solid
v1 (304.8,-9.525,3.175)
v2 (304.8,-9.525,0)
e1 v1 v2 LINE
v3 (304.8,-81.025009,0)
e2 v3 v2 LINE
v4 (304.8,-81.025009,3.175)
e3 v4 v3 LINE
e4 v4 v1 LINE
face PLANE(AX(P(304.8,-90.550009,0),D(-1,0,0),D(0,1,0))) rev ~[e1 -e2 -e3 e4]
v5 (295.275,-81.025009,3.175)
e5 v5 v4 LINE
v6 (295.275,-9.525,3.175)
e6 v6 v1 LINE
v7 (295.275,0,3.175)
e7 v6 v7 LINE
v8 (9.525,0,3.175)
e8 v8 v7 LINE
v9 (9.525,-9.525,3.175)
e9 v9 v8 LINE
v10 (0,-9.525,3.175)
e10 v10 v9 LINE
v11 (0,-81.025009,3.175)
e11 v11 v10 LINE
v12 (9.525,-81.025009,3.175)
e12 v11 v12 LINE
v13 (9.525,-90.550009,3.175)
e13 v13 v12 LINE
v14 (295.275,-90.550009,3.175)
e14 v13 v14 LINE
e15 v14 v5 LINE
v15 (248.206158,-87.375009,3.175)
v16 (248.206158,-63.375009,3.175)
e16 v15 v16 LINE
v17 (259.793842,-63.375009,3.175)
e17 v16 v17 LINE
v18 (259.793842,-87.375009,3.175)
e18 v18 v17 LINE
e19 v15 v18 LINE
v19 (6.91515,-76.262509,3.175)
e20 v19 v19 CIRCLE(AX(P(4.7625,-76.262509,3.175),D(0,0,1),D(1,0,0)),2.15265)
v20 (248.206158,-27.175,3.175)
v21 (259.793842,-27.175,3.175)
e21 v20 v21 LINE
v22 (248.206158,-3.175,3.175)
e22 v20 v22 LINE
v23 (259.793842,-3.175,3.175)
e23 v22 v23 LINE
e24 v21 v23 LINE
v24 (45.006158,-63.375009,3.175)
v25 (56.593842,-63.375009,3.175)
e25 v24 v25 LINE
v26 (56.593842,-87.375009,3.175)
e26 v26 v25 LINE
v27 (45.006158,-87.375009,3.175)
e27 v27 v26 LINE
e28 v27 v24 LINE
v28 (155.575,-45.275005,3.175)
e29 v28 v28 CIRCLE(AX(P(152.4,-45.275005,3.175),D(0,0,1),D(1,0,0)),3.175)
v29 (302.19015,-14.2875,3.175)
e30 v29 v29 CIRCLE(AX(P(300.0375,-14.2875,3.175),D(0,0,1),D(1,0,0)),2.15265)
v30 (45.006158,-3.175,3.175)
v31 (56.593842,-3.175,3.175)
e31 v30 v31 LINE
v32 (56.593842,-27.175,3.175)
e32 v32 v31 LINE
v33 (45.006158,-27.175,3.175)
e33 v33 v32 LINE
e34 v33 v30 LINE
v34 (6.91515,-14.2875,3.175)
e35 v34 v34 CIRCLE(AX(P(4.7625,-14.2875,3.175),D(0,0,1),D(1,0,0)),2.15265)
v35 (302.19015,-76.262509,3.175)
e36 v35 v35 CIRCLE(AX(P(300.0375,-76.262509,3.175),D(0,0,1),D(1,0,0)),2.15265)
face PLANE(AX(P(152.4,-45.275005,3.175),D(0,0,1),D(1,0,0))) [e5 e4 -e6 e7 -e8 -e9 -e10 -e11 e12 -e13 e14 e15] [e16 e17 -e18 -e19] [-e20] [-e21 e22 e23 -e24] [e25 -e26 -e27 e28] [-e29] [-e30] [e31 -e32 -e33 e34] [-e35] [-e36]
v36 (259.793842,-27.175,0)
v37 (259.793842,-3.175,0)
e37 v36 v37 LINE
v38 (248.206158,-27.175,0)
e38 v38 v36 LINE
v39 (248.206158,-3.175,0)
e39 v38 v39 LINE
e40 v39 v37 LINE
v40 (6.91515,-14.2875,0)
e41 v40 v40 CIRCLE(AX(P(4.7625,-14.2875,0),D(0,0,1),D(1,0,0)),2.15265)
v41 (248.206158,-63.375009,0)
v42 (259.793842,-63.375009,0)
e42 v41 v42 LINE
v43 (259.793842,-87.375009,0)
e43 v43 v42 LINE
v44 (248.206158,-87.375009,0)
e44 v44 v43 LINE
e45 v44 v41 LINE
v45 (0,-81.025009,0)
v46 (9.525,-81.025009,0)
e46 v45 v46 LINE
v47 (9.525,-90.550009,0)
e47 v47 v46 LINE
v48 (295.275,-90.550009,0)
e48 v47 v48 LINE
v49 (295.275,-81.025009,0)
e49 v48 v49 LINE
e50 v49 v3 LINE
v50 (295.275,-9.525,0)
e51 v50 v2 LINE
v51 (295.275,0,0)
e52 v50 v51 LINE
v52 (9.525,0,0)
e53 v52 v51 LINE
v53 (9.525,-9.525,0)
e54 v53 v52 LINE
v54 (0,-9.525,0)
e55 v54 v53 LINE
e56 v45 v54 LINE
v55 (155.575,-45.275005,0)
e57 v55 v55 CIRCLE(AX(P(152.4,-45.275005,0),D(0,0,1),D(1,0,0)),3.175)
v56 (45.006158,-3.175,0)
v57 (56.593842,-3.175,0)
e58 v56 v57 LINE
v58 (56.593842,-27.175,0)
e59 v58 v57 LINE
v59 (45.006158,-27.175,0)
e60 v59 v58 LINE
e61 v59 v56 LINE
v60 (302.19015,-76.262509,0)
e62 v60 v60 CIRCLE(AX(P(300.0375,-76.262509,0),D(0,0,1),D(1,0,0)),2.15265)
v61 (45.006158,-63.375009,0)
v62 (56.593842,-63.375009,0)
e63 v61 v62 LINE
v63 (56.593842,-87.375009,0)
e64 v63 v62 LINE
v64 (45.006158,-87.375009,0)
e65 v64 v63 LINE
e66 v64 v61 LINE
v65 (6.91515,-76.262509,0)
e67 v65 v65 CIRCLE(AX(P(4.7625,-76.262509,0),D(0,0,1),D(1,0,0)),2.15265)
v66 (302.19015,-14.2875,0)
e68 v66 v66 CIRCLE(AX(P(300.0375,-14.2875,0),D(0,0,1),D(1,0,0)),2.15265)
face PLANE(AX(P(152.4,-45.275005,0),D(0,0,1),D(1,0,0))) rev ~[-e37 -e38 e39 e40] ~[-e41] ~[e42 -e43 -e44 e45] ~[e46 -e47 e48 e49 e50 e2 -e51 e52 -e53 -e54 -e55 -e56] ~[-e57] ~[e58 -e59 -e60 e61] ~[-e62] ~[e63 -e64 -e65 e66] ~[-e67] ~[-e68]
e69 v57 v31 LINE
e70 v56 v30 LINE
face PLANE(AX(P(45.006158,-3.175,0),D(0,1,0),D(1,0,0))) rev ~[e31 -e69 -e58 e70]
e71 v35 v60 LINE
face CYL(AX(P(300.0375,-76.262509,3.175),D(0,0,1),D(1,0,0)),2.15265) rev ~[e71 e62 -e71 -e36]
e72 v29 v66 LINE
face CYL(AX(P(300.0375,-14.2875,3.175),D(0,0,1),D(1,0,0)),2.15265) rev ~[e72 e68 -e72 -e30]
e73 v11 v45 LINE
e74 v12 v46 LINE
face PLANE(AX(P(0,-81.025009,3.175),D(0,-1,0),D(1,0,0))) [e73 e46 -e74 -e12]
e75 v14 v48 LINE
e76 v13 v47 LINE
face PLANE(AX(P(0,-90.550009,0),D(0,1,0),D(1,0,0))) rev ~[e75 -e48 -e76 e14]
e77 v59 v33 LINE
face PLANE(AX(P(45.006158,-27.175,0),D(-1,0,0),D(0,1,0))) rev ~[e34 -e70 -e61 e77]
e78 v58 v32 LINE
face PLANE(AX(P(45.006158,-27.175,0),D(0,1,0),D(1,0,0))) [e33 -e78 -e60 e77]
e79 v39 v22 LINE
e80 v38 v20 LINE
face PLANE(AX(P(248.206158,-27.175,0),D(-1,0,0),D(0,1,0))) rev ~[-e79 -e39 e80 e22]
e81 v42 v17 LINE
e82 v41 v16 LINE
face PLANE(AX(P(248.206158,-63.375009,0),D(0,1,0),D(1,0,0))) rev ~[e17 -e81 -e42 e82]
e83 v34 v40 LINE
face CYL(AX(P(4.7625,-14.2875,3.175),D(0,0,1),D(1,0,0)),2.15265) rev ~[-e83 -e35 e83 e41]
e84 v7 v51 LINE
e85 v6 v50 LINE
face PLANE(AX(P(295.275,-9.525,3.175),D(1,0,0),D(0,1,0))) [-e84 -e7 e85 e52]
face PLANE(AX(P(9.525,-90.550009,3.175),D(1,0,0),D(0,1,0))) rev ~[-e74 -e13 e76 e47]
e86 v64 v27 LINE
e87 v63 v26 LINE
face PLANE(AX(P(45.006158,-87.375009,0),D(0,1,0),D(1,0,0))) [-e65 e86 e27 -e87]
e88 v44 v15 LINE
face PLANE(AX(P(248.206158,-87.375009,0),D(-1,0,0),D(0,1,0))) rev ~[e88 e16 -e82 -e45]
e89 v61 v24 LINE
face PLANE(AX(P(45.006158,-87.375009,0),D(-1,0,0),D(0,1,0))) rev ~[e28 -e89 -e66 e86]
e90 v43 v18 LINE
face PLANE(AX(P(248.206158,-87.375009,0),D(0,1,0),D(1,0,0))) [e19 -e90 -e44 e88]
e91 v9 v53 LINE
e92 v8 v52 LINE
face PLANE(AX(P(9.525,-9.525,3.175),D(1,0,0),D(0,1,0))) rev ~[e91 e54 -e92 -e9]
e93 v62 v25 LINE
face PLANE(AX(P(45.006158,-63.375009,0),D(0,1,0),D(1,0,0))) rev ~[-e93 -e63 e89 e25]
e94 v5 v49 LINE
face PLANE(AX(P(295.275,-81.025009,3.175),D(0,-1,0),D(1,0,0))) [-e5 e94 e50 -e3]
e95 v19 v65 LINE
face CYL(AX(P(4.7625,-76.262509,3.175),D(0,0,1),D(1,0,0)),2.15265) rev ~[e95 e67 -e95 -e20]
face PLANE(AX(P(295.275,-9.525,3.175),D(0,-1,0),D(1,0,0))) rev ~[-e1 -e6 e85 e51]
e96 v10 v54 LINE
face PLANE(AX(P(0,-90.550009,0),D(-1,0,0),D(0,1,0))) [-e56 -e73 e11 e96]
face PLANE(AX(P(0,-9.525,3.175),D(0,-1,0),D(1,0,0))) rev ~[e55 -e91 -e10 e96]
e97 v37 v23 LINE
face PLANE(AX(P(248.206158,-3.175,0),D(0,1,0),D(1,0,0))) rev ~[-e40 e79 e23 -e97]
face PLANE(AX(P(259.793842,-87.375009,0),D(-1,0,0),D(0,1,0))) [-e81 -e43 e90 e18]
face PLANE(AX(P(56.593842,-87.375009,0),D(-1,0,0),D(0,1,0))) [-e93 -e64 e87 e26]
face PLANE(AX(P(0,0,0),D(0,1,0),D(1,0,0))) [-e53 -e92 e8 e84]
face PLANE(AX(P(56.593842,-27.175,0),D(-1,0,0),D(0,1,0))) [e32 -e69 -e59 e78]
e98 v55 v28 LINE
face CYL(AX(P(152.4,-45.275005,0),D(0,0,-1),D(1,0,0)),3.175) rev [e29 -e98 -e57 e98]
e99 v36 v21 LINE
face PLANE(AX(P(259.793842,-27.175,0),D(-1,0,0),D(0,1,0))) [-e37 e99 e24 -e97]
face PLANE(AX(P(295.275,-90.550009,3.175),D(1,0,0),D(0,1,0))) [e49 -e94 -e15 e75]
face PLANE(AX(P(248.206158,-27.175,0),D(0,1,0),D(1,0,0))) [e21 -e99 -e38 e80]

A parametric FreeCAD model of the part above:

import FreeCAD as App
import Part
import Sketcher
Q = App.Units.Quantity

doc = App.newDocument("Part")
params = doc.addObject("Spreadsheet::Sheet", "Params")
for row, (alias, value) in enumerate([
    ("sketch1_diameter", "0.25 in"),
    ("sketch1_width", "12 in"),
    ("pad1_length", "0.125 in"),
    ("sketch3_width", "0.375 in"),
], start=1):
    params.set(f"A{row}", alias)
    params.set(f"B{row}", "=" + value)
    params.setAlias(f"B{row}", alias)

body = doc.addObject("PartDesign::Body", "Body")

# Sketch on XY plane
sketch1 = doc.addObject("Sketcher::SketchObject", "Sketch")
body.addObject(sketch1)
sketch1.AttachmentSupport = (doc.XY_Plane, [""])
sketch1.MapMode = "FlatFace"
sketch1.addGeometry(Part.LineSegment(App.Vector(0, 0, 0), App.Vector(0, -90.550009, 0)), False)
sketch1.addGeometry(Part.LineSegment(App.Vector(0, -90.550009, 0), App.Vector(304.8, -90.550009, 0)), False)
sketch1.addGeometry(Part.LineSegment(App.Vector(304.8, -90.550009, 0), App.Vector(304.8, 0, 0)), False)
sketch1.addGeometry(Part.LineSegment(App.Vector(304.8, 0, 0), App.Vector(0, 0, 0)), False)
sketch1.addGeometry(Part.LineSegment(App.Vector(56.593842, -87.375009, 0), App.Vector(45.006158, -87.375009, 0)), False)
sketch1.addGeometry(Part.LineSegment(App.Vector(45.006158, -87.375009, 0), App.Vector(45.006158, -63.375009, 0)), False)
sketch1.addGeometry(Part.LineSegment(App.Vector(45.006158, -63.375009, 0), App.Vector(56.593842, -63.375009, 0)), False)
sketch1.addGeometry(Part.LineSegment(App.Vector(56.593842, -63.375009, 0), App.Vector(56.593842, -87.375009, 0)), False)
sketch1.addGeometry(Part.LineSegment(App.Vector(259.793842, -87.375009, 0), App.Vector(248.206158, -87.375009, 0)), False)
sketch1.addGeometry(Part.LineSegment(App.Vector(248.206158, -87.375009, 0), App.Vector(248.206158, -63.375009, 0)), False)
sketch1.addGeometry(Part.LineSegment(App.Vector(248.206158, -63.375009, 0), App.Vector(259.793842, -63.375009, 0)), False)
sketch1.addGeometry(Part.LineSegment(App.Vector(259.793842, -63.375009, 0), App.Vector(259.793842, -87.375009, 0)), False)
sketch1.addGeometry(Part.Circle(App.Vector(152.4, -45.275005, 0), App.Vector(0, 0, 1), 3.175), False)
sketch1.addGeometry(Part.LineSegment(App.Vector(56.593842, -27.175, 0), App.Vector(45.006158, -27.175, 0)), False)
sketch1.addGeometry(Part.LineSegment(App.Vector(45.006158, -27.175, 0), App.Vector(45.006158, -3.175, 0)), False)
sketch1.addGeometry(Part.LineSegment(App.Vector(45.006158, -3.175, 0), App.Vector(56.593842, -3.175, 0)), False)
sketch1.addGeometry(Part.LineSegment(App.Vector(56.593842, -3.175, 0), App.Vector(56.593842, -27.175, 0)), False)
sketch1.addGeometry(Part.LineSegment(App.Vector(259.793842, -27.175, 0), App.Vector(248.206158, -27.175, 0)), False)
sketch1.addGeometry(Part.LineSegment(App.Vector(248.206158, -27.175, 0), App.Vector(248.206158, -3.175, 0)), False)
sketch1.addGeometry(Part.LineSegment(App.Vector(248.206158, -3.175, 0), App.Vector(259.793842, -3.175, 0)), False)
sketch1.addGeometry(Part.LineSegment(App.Vector(259.793842, -3.175, 0), App.Vector(259.793842, -27.175, 0)), False)
sketch1.addConstraint(Sketcher.Constraint("Coincident", 0, 2, 1, 1))
sketch1.addConstraint(Sketcher.Constraint("Coincident", 1, 2, 2, 1))
sketch1.addConstraint(Sketcher.Constraint("Coincident", 2, 2, 3, 1))
sketch1.addConstraint(Sketcher.Constraint("Coincident", 3, 2, 0, 1))
sketch1.addConstraint(Sketcher.Constraint("Coincident", 4, 2, 5, 1))
sketch1.addConstraint(Sketcher.Constraint("Coincident", 5, 2, 6, 1))
sketch1.addConstraint(Sketcher.Constraint("Coincident", 6, 2, 7, 1))
sketch1.addConstraint(Sketcher.Constraint("Coincident", 7, 2, 4, 1))
sketch1.addConstraint(Sketcher.Constraint("Coincident", 8, 2, 9, 1))
sketch1.addConstraint(Sketcher.Constraint("Coincident", 9, 2, 10, 1))
sketch1.addConstraint(Sketcher.Constraint("Coincident", 10, 2, 11, 1))
sketch1.addConstraint(Sketcher.Constraint("Coincident", 11, 2, 8, 1))
sketch1.addConstraint(Sketcher.Constraint("Coincident", 13, 2, 14, 1))
sketch1.addConstraint(Sketcher.Constraint("Coincident", 14, 2, 15, 1))
sketch1.addConstraint(Sketcher.Constraint("Coincident", 15, 2, 16, 1))
sketch1.addConstraint(Sketcher.Constraint("Coincident", 16, 2, 13, 1))
sketch1.addConstraint(Sketcher.Constraint("Coincident", 17, 2, 18, 1))
sketch1.addConstraint(Sketcher.Constraint("Coincident", 18, 2, 19, 1))
sketch1.addConstraint(Sketcher.Constraint("Coincident", 19, 2, 20, 1))
sketch1.addConstraint(Sketcher.Constraint("Coincident", 20, 2, 17, 1))
sketch1.addConstraint(Sketcher.Constraint("Vertical", 0))
sketch1.addConstraint(Sketcher.Constraint("Horizontal", 1))
sketch1.addConstraint(Sketcher.Constraint("Vertical", 2))
sketch1.addConstraint(Sketcher.Constraint("Horizontal", 3))
sketch1.addConstraint(Sketcher.Constraint("Horizontal", 4))
sketch1.addConstraint(Sketcher.Constraint("Vertical", 5))
sketch1.addConstraint(Sketcher.Constraint("Horizontal", 6))
sketch1.addConstraint(Sketcher.Constraint("Vertical", 7))
sketch1.addConstraint(Sketcher.Constraint("Horizontal", 8))
sketch1.addConstraint(Sketcher.Constraint("Vertical", 9))
sketch1.addConstraint(Sketcher.Constraint("Horizontal", 10))
sketch1.addConstraint(Sketcher.Constraint("Vertical", 11))
sketch1.addConstraint(Sketcher.Constraint("Horizontal", 13))
sketch1.addConstraint(Sketcher.Constraint("Vertical", 14))
sketch1.addConstraint(Sketcher.Constraint("Horizontal", 15))
sketch1.addConstraint(Sketcher.Constraint("Vertical", 16))
sketch1.addConstraint(Sketcher.Constraint("Horizontal", 17))
sketch1.addConstraint(Sketcher.Constraint("Vertical", 18))
sketch1.addConstraint(Sketcher.Constraint("Horizontal", 19))
sketch1.addConstraint(Sketcher.Constraint("Vertical", 20))
sketch1.addConstraint(Sketcher.Constraint("Coincident", 3, 2, -1, 1))
sketch1.addConstraint(Sketcher.Constraint("Horizontal", 7, 2, 8, 2))
sketch1.addConstraint(Sketcher.Constraint("Horizontal", 6, 2, 9, 2))
sketch1.addConstraint(Sketcher.Constraint("Horizontal", 16, 2, 17, 2))
sketch1.addConstraint(Sketcher.Constraint("Horizontal", 15, 2, 18, 2))
sketch1.addConstraint(Sketcher.Constraint("Vertical", 5, 2, 13, 2))
sketch1.addConstraint(Sketcher.Constraint("Vertical", 7, 2, 15, 2))
sketch1.addConstraint(Sketcher.Constraint("Vertical", 9, 2, 17, 2))
sketch1.addConstraint(Sketcher.Constraint("Vertical", 11, 2, 19, 2))
sketch1.addConstraint(Sketcher.Constraint("Equal", 6, 8))
sketch1.addConstraint(Sketcher.Constraint("Equal", 11, 14))
sketch1.addConstraint(Sketcher.Constraint("Diameter", 12, Q("0.25 in")))
sketch1.addConstraint(Sketcher.Constraint("DistanceX", 1, 1, 1, 2, Q("12 in")))
sketch1.addConstraint(Sketcher.Constraint("DistanceX", -1, 1, 12, 3, Q("6 in")))
sketch1.addConstraint(Sketcher.Constraint("DistanceY", 14, 2, -1, 1, Q("0.125 in")))
sketch1.addConstraint(Sketcher.Constraint("DistanceY", 0, 2, 4, 2, Q("0.125 in")))
sketch1.addConstraint(Sketcher.Constraint("DistanceY", 5, 1, 5, 2, Q("24 mm")))
sketch1.addConstraint(Sketcher.Constraint("DistanceY", 0, 2, 0, 1, Q("90.550009 mm")))
sketch1.addConstraint(Sketcher.Constraint("DistanceX", 4, 2, 4, 1, Q("11.587683 mm")))
sketch1.addConstraint(Sketcher.Constraint("DistanceX", -1, 1, 4, 2, Q("45.006158 mm")))
sketch1.addConstraint(Sketcher.Constraint("DistanceX", -1, 1, 8, 2, Q("248.206158 mm")))
sketch1.addConstraint(Sketcher.Constraint("DistanceY", 12, 3, -1, 1, Q("45.275005 mm")))
sketch1.setExpression("Constraints[51]", "Params.sketch1_diameter")
sketch1.setExpression("Constraints[52]", "Params.sketch1_width")
pad1 = doc.addObject("PartDesign::Pad", "Pad")
body.addObject(pad1)
pad1.Profile = sketch1
pad1.setExpression("Length", "Params.pad1_length")

# Sketch on XY plane
sketch2 = doc.addObject("Sketcher::SketchObject", "Sketch001")
body.addObject(sketch2)
sketch2.AttachmentSupport = (doc.XY_Plane, [""])
sketch2.MapMode = "FlatFace"
sketch2.AttachmentOffset = App.Placement(App.Vector(0, 0, 0.125 * 25.4), App.Rotation())
sketch2.addGeometry(Part.Circle(App.Vector(4.7625, -14.2875, 0), App.Vector(0, 0, 1), 2.15265), False)
sketch2.addGeometry(Part.Circle(App.Vector(4.7625, -76.262509, 0), App.Vector(0, 0, 1), 2.15265), False)
sketch2.addGeometry(Part.Circle(App.Vector(300.0375, -76.262509, 0), App.Vector(0, 0, 1), 2.15265), False)
sketch2.addGeometry(Part.Circle(App.Vector(300.0375, -14.2875, 0), App.Vector(0, 0, 1), 2.15265), False)
sketch2.addConstraint(Sketcher.Constraint("Equal", 0, 1))
sketch2.addConstraint(Sketcher.Constraint("Equal", 1, 2))
sketch2.addConstraint(Sketcher.Constraint("Equal", 2, 3))
sketch2.addConstraint(Sketcher.Constraint("Horizontal", 1, 3, 2, 3))
sketch2.addConstraint(Sketcher.Constraint("Horizontal", 0, 3, 3, 3))
sketch2.addConstraint(Sketcher.Constraint("Vertical", 0, 3, 1, 3))
sketch2.addConstraint(Sketcher.Constraint("Vertical", 2, 3, 3, 3))
sketch2.addConstraint(Sketcher.Constraint("Diameter", 0, Q("0.1695 in")))
sketch2.addConstraint(Sketcher.Constraint("DistanceX", -1, 1, 0, 3, Q("0.1875 in")))
sketch2.addConstraint(Sketcher.Constraint("DistanceY", 0, 3, -1, 1, Q("0.5625 in")))
sketch2.addConstraint(Sketcher.Constraint("DistanceX", -1, 1, 2, 3, Q("11.8125 in")))
sketch2.addConstraint(Sketcher.Constraint("DistanceY", 1, 3, -1, 1, Q("76.262509 mm")))
pocket1 = doc.addObject("PartDesign::Pocket", "Pocket")
body.addObject(pocket1)
pocket1.Profile = sketch2
pocket1.Type = "ThroughAll"

# Sketch on XY plane
sketch3 = doc.addObject("Sketcher::SketchObject", "Sketch002")
body.addObject(sketch3)
sketch3.AttachmentSupport = (doc.XY_Plane, [""])
sketch3.MapMode = "FlatFace"
sketch3.AttachmentOffset = App.Placement(App.Vector(0, 0, 0.125 * 25.4), App.Rotation())
sketch3.addGeometry(Part.LineSegment(App.Vector(295.275, 0, 0), App.Vector(295.275, -9.525, 0)), False)
sketch3.addGeometry(Part.LineSegment(App.Vector(295.275, -9.525, 0), App.Vector(304.8, -9.525, 0)), False)
sketch3.addGeometry(Part.LineSegment(App.Vector(304.8, -9.525, 0), App.Vector(304.8, 0, 0)), False)
sketch3.addGeometry(Part.LineSegment(App.Vector(304.8, 0, 0), App.Vector(295.275, 0, 0)), False)
sketch3.addGeometry(Part.LineSegment(App.Vector(295.275, -81.025009, 0), App.Vector(295.275, -90.550009, 0)), False)
sketch3.addGeometry(Part.LineSegment(App.Vector(295.275, -90.550009, 0), App.Vector(304.8, -90.550009, 0)), False)
sketch3.addGeometry(Part.LineSegment(App.Vector(304.8, -90.550009, 0), App.Vector(304.8, -81.025009, 0)), False)
sketch3.addGeometry(Part.LineSegment(App.Vector(304.8, -81.025009, 0), App.Vector(295.275, -81.025009, 0)), False)
sketch3.addGeometry(Part.LineSegment(App.Vector(0, -81.025009, 0), App.Vector(0, -90.550009, 0)), False)
sketch3.addGeometry(Part.LineSegment(App.Vector(0, -90.550009, 0), App.Vector(9.525, -90.550009, 0)), False)
sketch3.addGeometry(Part.LineSegment(App.Vector(9.525, -90.550009, 0), App.Vector(9.525, -81.025009, 0)), False)
sketch3.addGeometry(Part.LineSegment(App.Vector(9.525, -81.025009, 0), App.Vector(0, -81.025009, 0)), False)
sketch3.addGeometry(Part.LineSegment(App.Vector(0, 0, 0), App.Vector(0, -9.525, 0)), False)
sketch3.addGeometry(Part.LineSegment(App.Vector(0, -9.525, 0), App.Vector(9.525, -9.525, 0)), False)
sketch3.addGeometry(Part.LineSegment(App.Vector(9.525, -9.525, 0), App.Vector(9.525, 0, 0)), False)
sketch3.addGeometry(Part.LineSegment(App.Vector(9.525, 0, 0), App.Vector(0, 0, 0)), False)
sketch3.addConstraint(Sketcher.Constraint("Coincident", 0, 2, 1, 1))
sketch3.addConstraint(Sketcher.Constraint("Coincident", 1, 2, 2, 1))
sketch3.addConstraint(Sketcher.Constraint("Coincident", 2, 2, 3, 1))
sketch3.addConstraint(Sketcher.Constraint("Coincident", 3, 2, 0, 1))
sketch3.addConstraint(Sketcher.Constraint("Coincident", 4, 2, 5, 1))
sketch3.addConstraint(Sketcher.Constraint("Coincident", 5, 2, 6, 1))
sketch3.addConstraint(Sketcher.Constraint("Coincident", 6, 2, 7, 1))
sketch3.addConstraint(Sketcher.Constraint("Coincident", 7, 2, 4, 1))
sketch3.addConstraint(Sketcher.Constraint("Coincident", 8, 2, 9, 1))
sketch3.addConstraint(Sketcher.Constraint("Coincident", 9, 2, 10, 1))
sketch3.addConstraint(Sketcher.Constraint("Coincident", 10, 2, 11, 1))
sketch3.addConstraint(Sketcher.Constraint("Coincident", 11, 2, 8, 1))
sketch3.addConstraint(Sketcher.Constraint("Coincident", 12, 2, 13, 1))
sketch3.addConstraint(Sketcher.Constraint("Coincident", 13, 2, 14, 1))
sketch3.addConstraint(Sketcher.Constraint("Coincident", 14, 2, 15, 1))
sketch3.addConstraint(Sketcher.Constraint("Coincident", 15, 2, 12, 1))
sketch3.addConstraint(Sketcher.Constraint("Vertical", 0))
sketch3.addConstraint(Sketcher.Constraint("Horizontal", 1))
sketch3.addConstraint(Sketcher.Constraint("Vertical", 2))
sketch3.addConstraint(Sketcher.Constraint("Horizontal", 3))
sketch3.addConstraint(Sketcher.Constraint("Vertical", 4))
sketch3.addConstraint(Sketcher.Constraint("Horizontal", 5))
sketch3.addConstraint(Sketcher.Constraint("Vertical", 6))
sketch3.addConstraint(Sketcher.Constraint("Horizontal", 7))
sketch3.addConstraint(Sketcher.Constraint("Vertical", 8))
sketch3.addConstraint(Sketcher.Constraint("Horizontal", 9))
sketch3.addConstraint(Sketcher.Constraint("Vertical", 10))
sketch3.addConstraint(Sketcher.Constraint("Horizontal", 11))
sketch3.addConstraint(Sketcher.Constraint("Vertical", 12))
sketch3.addConstraint(Sketcher.Constraint("Horizontal", 13))
sketch3.addConstraint(Sketcher.Constraint("Vertical", 14))
sketch3.addConstraint(Sketcher.Constraint("Horizontal", 15))
sketch3.addConstraint(Sketcher.Constraint("Coincident", 15, 2, -1, 1))
sketch3.addConstraint(Sketcher.Constraint("PointOnObject", 2, 2, -1))
sketch3.addConstraint(Sketcher.Constraint("PointOnObject", 8, 2, -2))
sketch3.addConstraint(Sketcher.Constraint("Horizontal", 5, 2, 8, 2))
sketch3.addConstraint(Sketcher.Constraint("Horizontal", 7, 2, 10, 2))
sketch3.addConstraint(Sketcher.Constraint("Horizontal", 1, 2, 12, 2))
sketch3.addConstraint(Sketcher.Constraint("Vertical", 3, 2, 4, 2))
sketch3.addConstraint(Sketcher.Constraint("Vertical", 2, 2, 5, 2))
sketch3.addConstraint(Sketcher.Constraint("Vertical", 10, 2, 13, 2))
sketch3.addConstraint(Sketcher.Constraint("Equal", 7, 9))
sketch3.addConstraint(Sketcher.Constraint("Equal", 15, 0))
sketch3.addConstraint(Sketcher.Constraint("Equal", 2, 4))
sketch3.addConstraint(Sketcher.Constraint("DistanceX", -1, 1, 1, 2, Q("12 in")))
sketch3.addConstraint(Sketcher.Constraint("DistanceX", 1, 1, 1, 2, Q("0.375 in")))
sketch3.addConstraint(Sketcher.Constraint("DistanceY", 4, 2, -1, 1, Q("90.550009 mm")))
sketch3.setExpression("Constraints[45]", "Params.sketch3_width")
pocket2 = doc.addObject("PartDesign::Pocket", "Pocket001")
body.addObject(pocket2)
pocket2.Profile = sketch3
pocket2.Type = "ThroughAll"

doc.recompute()
